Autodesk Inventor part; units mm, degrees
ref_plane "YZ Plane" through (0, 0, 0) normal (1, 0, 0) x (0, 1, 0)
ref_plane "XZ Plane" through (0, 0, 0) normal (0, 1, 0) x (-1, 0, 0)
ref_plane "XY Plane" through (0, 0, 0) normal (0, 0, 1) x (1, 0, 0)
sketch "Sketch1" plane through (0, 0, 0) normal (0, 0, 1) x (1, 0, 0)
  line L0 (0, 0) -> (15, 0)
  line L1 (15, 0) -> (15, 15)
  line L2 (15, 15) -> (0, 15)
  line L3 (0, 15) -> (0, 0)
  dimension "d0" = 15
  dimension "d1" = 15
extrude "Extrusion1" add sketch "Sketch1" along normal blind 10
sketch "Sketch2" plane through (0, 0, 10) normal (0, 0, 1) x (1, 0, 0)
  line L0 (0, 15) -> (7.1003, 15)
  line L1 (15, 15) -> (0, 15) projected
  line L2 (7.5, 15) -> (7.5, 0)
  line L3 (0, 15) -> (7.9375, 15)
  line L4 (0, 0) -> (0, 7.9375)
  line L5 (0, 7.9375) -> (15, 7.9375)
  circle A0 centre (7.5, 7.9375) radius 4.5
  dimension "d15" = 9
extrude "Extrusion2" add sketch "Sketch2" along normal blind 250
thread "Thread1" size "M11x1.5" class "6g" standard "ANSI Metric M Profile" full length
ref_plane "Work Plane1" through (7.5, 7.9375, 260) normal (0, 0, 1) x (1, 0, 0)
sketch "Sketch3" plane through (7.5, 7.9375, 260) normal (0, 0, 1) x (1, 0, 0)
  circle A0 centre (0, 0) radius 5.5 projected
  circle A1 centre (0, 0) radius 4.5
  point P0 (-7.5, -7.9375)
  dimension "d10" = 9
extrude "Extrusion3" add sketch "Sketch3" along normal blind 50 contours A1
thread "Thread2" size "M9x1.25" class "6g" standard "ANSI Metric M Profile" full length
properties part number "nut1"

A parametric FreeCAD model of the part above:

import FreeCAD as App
import Part
import Sketcher
Q = App.Units.Quantity


def add_polygon(sketch, points):
    """Adds a closed chain of lines whose ends are joined by coincident constraints."""
    first, n = sketch.GeometryCount, len(points)
    for a, b in zip(points, points[1:] + points[:1]):
        sketch.addGeometry(Part.LineSegment(App.Vector(*a, 0), App.Vector(*b, 0)), False)
    for i in range(n):
        sketch.addConstraint(Sketcher.Constraint("Coincident", first + i, 2, first + (i + 1) % n, 1))

doc = App.newDocument("Part")
body = doc.addObject("PartDesign::Body", "Body")

# Sketch on XY plane
sketch1 = doc.addObject("Sketcher::SketchObject", "Sketch")
body.addObject(sketch1)
sketch1.AttachmentSupport = (doc.XY_Plane, [""])
sketch1.MapMode = "FlatFace"
add_polygon(sketch1, [(0, 15), (0, 0), (15, 0), (15, 15)])  # lines 0-3
sketch1.addConstraint([
    Sketcher.Constraint("Vertical", 0),
    Sketcher.Constraint("Horizontal", 1),
    Sketcher.Constraint("Vertical", 2),
    Sketcher.Constraint("Horizontal", 3),
    Sketcher.Constraint("Coincident", 0, 2, -1, 1),
    Sketcher.Constraint("Equal", 3, 0),
    Sketcher.Constraint("DistanceX", 1, 1, 1, 2, Q("15 mm")),
])
pad1 = doc.addObject("PartDesign::Pad", "Pad")
body.addObject(pad1)
pad1.Profile = sketch1
pad1.Length = 10

# Sketch on XY plane
sketch2 = doc.addObject("Sketcher::SketchObject", "Sketch001")
body.addObject(sketch2)
sketch2.AttachmentSupport = (doc.XY_Plane, [""])
sketch2.MapMode = "FlatFace"
sketch2.AttachmentOffset = App.Placement(App.Vector(0, 0, 10), App.Rotation())
sketch2.addGeometry(Part.Circle(App.Vector(7.5, 7.9, 0), App.Vector(0, 0, 1), 4.5), False)
sketch2.addConstraint([
    Sketcher.Constraint("Diameter", 0, Q("9 mm")),
    Sketcher.Constraint("DistanceX", -1, 1, 0, 3, Q("7.5 mm")),
    Sketcher.Constraint("DistanceY", -1, 1, 0, 3, Q("7.9375 mm")),
])
pad2 = doc.addObject("PartDesign::Pad", "Pad001")
body.addObject(pad2)
pad2.Profile = sketch2
pad2.Length = 250

# Sketch on XY plane
sketch3 = doc.addObject("Sketcher::SketchObject", "Sketch002")
body.addObject(sketch3)
sketch3.AttachmentSupport = (doc.XY_Plane, [""])
sketch3.MapMode = "FlatFace"
sketch3.AttachmentOffset = App.Placement(App.Vector(0, 0, 260), App.Rotation())
sketch3.addGeometry(Part.Circle(App.Vector(7.5, 7.9, 0), App.Vector(0, 0, 1), 4.5), False)
sketch3.addConstraint([
    Sketcher.Constraint("Diameter", 0, Q("9 mm")),
    Sketcher.Constraint("DistanceX", -1, 1, 0, 3, Q("7.5 mm")),
    Sketcher.Constraint("DistanceY", -1, 1, 0, 3, Q("7.9375 mm")),
])
pad3 = doc.addObject("PartDesign::Pad", "Pad002")
body.addObject(pad3)
pad3.Profile = sketch3
pad3.Length = 50

doc.recompute()
